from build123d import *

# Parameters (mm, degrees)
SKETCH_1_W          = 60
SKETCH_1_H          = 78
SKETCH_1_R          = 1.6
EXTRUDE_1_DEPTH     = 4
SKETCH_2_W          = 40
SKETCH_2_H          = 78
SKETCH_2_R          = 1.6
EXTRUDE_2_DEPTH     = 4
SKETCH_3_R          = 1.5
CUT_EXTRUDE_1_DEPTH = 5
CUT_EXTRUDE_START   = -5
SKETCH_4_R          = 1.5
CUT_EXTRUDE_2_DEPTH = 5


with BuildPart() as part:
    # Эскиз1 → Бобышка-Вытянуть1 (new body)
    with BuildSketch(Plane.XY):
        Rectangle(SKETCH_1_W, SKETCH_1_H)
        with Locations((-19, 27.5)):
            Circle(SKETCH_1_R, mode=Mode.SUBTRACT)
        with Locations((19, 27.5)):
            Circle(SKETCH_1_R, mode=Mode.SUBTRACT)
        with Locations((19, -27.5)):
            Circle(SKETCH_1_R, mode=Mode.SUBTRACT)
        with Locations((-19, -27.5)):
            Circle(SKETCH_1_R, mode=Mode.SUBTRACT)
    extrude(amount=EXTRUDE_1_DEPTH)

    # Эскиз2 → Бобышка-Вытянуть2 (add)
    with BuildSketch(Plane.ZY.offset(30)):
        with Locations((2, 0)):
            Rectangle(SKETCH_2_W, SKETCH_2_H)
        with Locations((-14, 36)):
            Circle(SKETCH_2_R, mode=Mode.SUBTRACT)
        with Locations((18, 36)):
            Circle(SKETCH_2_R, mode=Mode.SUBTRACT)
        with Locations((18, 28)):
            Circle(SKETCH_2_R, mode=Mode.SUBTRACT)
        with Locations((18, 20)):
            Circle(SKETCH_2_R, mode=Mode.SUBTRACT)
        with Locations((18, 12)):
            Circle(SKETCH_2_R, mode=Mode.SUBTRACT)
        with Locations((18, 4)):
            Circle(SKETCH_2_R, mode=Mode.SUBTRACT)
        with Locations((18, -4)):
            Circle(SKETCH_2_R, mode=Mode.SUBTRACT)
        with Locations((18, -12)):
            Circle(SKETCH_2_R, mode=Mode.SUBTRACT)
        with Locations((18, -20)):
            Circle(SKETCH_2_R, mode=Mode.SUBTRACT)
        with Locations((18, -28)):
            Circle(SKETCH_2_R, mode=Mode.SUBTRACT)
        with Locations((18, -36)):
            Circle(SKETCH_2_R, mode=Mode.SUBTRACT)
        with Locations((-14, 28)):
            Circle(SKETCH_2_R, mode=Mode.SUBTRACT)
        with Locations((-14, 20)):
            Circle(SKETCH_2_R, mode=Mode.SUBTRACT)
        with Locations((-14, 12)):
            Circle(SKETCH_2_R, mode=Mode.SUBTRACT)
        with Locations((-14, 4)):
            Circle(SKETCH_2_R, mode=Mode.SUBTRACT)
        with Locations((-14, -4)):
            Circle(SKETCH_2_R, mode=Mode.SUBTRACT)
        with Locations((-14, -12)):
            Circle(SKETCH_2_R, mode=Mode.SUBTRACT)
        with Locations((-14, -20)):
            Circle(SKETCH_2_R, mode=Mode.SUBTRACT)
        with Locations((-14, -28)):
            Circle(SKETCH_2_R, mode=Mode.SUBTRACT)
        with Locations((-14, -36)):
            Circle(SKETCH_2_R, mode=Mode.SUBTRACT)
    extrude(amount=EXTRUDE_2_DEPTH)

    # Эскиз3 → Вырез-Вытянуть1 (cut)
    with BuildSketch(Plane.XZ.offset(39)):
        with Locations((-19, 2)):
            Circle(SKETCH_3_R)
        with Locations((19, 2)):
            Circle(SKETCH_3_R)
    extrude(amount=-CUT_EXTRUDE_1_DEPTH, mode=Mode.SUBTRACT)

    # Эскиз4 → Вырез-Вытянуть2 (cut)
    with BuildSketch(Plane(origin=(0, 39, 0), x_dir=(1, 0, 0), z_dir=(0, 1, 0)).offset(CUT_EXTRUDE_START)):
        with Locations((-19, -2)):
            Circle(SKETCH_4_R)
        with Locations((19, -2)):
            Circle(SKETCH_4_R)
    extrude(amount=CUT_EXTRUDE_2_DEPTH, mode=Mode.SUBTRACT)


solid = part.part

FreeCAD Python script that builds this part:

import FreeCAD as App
import Part
import Sketcher

doc = App.newDocument("Part")
params = doc.addObject("Spreadsheet::Sheet", "Params")
for row, (alias, value) in enumerate([
    ("sketch1_diameter", "3.2 mm"),
    ("sketch1_width", "60 mm"),
    ("sketch1_height", "78 mm"),
    ("pad1_length", "4 mm"),
    ("sketch2_diameter", "3.2 mm"),
    ("sketch2_width", "78 mm"),
    ("sketch2_height", "40 mm"),
    ("pad2_length", "4 mm"),
    ("sketch3_diameter", "3 mm"),
    ("pocket1_length", "5 mm"),
    ("sketch4_diameter", "3 mm"),
    ("pocket2_length", "5 mm"),
], start=1):
    params.set(f"A{row}", alias)
    params.set(f"B{row}", "=" + value)
    params.setAlias(f"B{row}", alias)

body = doc.addObject("PartDesign::Body", "Body")

sketch1 = doc.addObject("Sketcher::SketchObject", "Sketch")
body.addObject(sketch1)
sketch1.AttachmentSupport = (doc.XY_Plane, [""])
sketch1.MapMode = "FlatFace"
sketch1.addGeometry(Part.LineSegment(App.Vector(-30, 39, 0), App.Vector(-30, -39, 0)), False)
sketch1.addGeometry(Part.LineSegment(App.Vector(-30, -39, 0), App.Vector(30, -39, 0)), False)
sketch1.addGeometry(Part.LineSegment(App.Vector(30, -39, 0), App.Vector(30, 39, 0)), False)
sketch1.addGeometry(Part.LineSegment(App.Vector(30, 39, 0), App.Vector(-30, 39, 0)), False)
sketch1.addGeometry(Part.Circle(App.Vector(-19, -27.5, 0), App.Vector(0, 0, 1), 1.6), False)
sketch1.addGeometry(Part.Circle(App.Vector(19, -27.5, 0), App.Vector(0, 0, 1), 1.6), False)
sketch1.addGeometry(Part.Circle(App.Vector(-19, 27.5, 0), App.Vector(0, 0, 1), 1.6), False)
sketch1.addGeometry(Part.Circle(App.Vector(19, 27.5, 0), App.Vector(0, 0, 1), 1.6), False)
sketch1.addConstraint(Sketcher.Constraint("Coincident", 0, 2, 1, 1))
sketch1.addConstraint(Sketcher.Constraint("Coincident", 1, 2, 2, 1))
sketch1.addConstraint(Sketcher.Constraint("Coincident", 2, 2, 3, 1))
sketch1.addConstraint(Sketcher.Constraint("Coincident", 3, 2, 0, 1))
sketch1.addConstraint(Sketcher.Constraint("Vertical", 0))
sketch1.addConstraint(Sketcher.Constraint("Horizontal", 1))
sketch1.addConstraint(Sketcher.Constraint("Vertical", 2))
sketch1.addConstraint(Sketcher.Constraint("Horizontal", 3))
sketch1.addConstraint(Sketcher.Constraint("Equal", 4, 5))
sketch1.addConstraint(Sketcher.Constraint("Equal", 5, 6))
sketch1.addConstraint(Sketcher.Constraint("Equal", 6, 7))
sketch1.addConstraint(Sketcher.Constraint("Symmetric", 5, 3, 6, 3, -1, 1))
sketch1.addConstraint(Sketcher.Constraint("Symmetric", 4, 3, 7, 3, -1, 1))
sketch1.addConstraint(Sketcher.Constraint("Symmetric", 0, 2, 2, 2, -1, 1))
sketch1.addConstraint(Sketcher.Constraint("Symmetric", 4, 3, 5, 3, -2))
sketch1.addConstraint(Sketcher.Constraint("Diameter", 4, 3.2))
sketch1.addConstraint(Sketcher.Constraint("DistanceX", 1, 1, 1, 2, 60.0))
sketch1.addConstraint(Sketcher.Constraint("DistanceY", 0, 2, 0, 1, 78.0))
sketch1.addConstraint(Sketcher.Constraint("DistanceX", 4, 3, -1, 1, 19.0))
sketch1.addConstraint(Sketcher.Constraint("DistanceY", 4, 3, 6, 3, 55.0))
sketch1.setExpression("Constraints[15]", "Params.sketch1_diameter")
sketch1.setExpression("Constraints[16]", "Params.sketch1_width")
sketch1.setExpression("Constraints[17]", "Params.sketch1_height")
pad1 = doc.addObject("PartDesign::Pad", "Pad")
body.addObject(pad1)
pad1.Profile = sketch1
pad1.setExpression("Length", "Params.pad1_length")

sketch2 = doc.addObject("Sketcher::SketchObject", "Sketch001")
body.addObject(sketch2)
sketch2.AttachmentSupport = (doc.YZ_Plane, [""])
sketch2.MapMode = "FlatFace"
sketch2.AttachmentOffset = App.Placement(App.Vector(0, 0, -30), App.Rotation())
sketch2.addGeometry(Part.LineSegment(App.Vector(39, -18, 0), App.Vector(-39, -18, 0)), False)
sketch2.addGeometry(Part.LineSegment(App.Vector(-39, -18, 0), App.Vector(-39, 22, 0)), False)
sketch2.addGeometry(Part.LineSegment(App.Vector(-39, 22, 0), App.Vector(39, 22, 0)), False)
sketch2.addGeometry(Part.LineSegment(App.Vector(39, 22, 0), App.Vector(39, -18, 0)), False)
sketch2.addGeometry(Part.Circle(App.Vector(-36, -14, 0), App.Vector(0, 0, 1), 1.6), False)
sketch2.addGeometry(Part.Circle(App.Vector(-28, -14, 0), App.Vector(0, 0, 1), 1.6), False)
sketch2.addGeometry(Part.Circle(App.Vector(-20, -14, 0), App.Vector(0, 0, 1), 1.6), False)
sketch2.addGeometry(Part.Circle(App.Vector(-12, -14, 0), App.Vector(0, 0, 1), 1.6), False)
sketch2.addGeometry(Part.Circle(App.Vector(-4, -14, 0), App.Vector(0, 0, 1), 1.6), False)
sketch2.addGeometry(Part.Circle(App.Vector(-36, 18, 0), App.Vector(0, 0, 1), 1.6), False)
sketch2.addGeometry(Part.Circle(App.Vector(-28, 18, 0), App.Vector(0, 0, 1), 1.6), False)
sketch2.addGeometry(Part.Circle(App.Vector(-20, 18, 0), App.Vector(0, 0, 1), 1.6), False)
sketch2.addGeometry(Part.Circle(App.Vector(-12, 18, 0), App.Vector(0, 0, 1), 1.6), False)
sketch2.addGeometry(Part.Circle(App.Vector(-4, 18, 0), App.Vector(0, 0, 1), 1.6), False)
sketch2.addGeometry(Part.Circle(App.Vector(4, -14, 0), App.Vector(0, 0, 1), 1.6), False)
sketch2.addGeometry(Part.Circle(App.Vector(12, -14, 0), App.Vector(0, 0, 1), 1.6), False)
sketch2.addGeometry(Part.Circle(App.Vector(20, -14, 0), App.Vector(0, 0, 1), 1.6), False)
sketch2.addGeometry(Part.Circle(App.Vector(28, -14, 0), App.Vector(0, 0, 1), 1.6), False)
sketch2.addGeometry(Part.Circle(App.Vector(36, -14, 0), App.Vector(0, 0, 1), 1.6), False)
sketch2.addGeometry(Part.Circle(App.Vector(4, 18, 0), App.Vector(0, 0, 1), 1.6), False)
sketch2.addGeometry(Part.Circle(App.Vector(12, 18, 0), App.Vector(0, 0, 1), 1.6), False)
sketch2.addGeometry(Part.Circle(App.Vector(20, 18, 0), App.Vector(0, 0, 1), 1.6), False)
sketch2.addGeometry(Part.Circle(App.Vector(28, 18, 0), App.Vector(0, 0, 1), 1.6), False)
sketch2.addGeometry(Part.Circle(App.Vector(36, 18, 0), App.Vector(0, 0, 1), 1.6), False)
sketch2.addConstraint(Sketcher.Constraint("Coincident", 0, 2, 1, 1))
sketch2.addConstraint(Sketcher.Constraint("Coincident", 1, 2, 2, 1))
sketch2.addConstraint(Sketcher.Constraint("Coincident", 2, 2, 3, 1))
sketch2.addConstraint(Sketcher.Constraint("Coincident", 3, 2, 0, 1))
sketch2.addConstraint(Sketcher.Constraint("Horizontal", 0))
sketch2.addConstraint(Sketcher.Constraint("Vertical", 1))
sketch2.addConstraint(Sketcher.Constraint("Horizontal", 2))
sketch2.addConstraint(Sketcher.Constraint("Vertical", 3))
sketch2.addConstraint(Sketcher.Constraint("Equal", 4, 5))
sketch2.addConstraint(Sketcher.Constraint("Equal", 5, 6))
sketch2.addConstraint(Sketcher.Constraint("Equal", 6, 7))
sketch2.addConstraint(Sketcher.Constraint("Equal", 7, 8))
sketch2.addConstraint(Sketcher.Constraint("Equal", 8, 9))
sketch2.addConstraint(Sketcher.Constraint("Equal", 9, 10))
sketch2.addConstraint(Sketcher.Constraint("Equal", 10, 11))
sketch2.addConstraint(Sketcher.Constraint("Equal", 11, 12))
sketch2.addConstraint(Sketcher.Constraint("Equal", 12, 13))
sketch2.addConstraint(Sketcher.Constraint("Equal", 13, 14))
sketch2.addConstraint(Sketcher.Constraint("Equal", 14, 15))
sketch2.addConstraint(Sketcher.Constraint("Equal", 15, 16))
sketch2.addConstraint(Sketcher.Constraint("Equal", 16, 17))
sketch2.addConstraint(Sketcher.Constraint("Equal", 17, 18))
sketch2.addConstraint(Sketcher.Constraint("Equal", 18, 19))
sketch2.addConstraint(Sketcher.Constraint("Equal", 19, 20))
sketch2.addConstraint(Sketcher.Constraint("Equal", 20, 21))
sketch2.addConstraint(Sketcher.Constraint("Equal", 21, 22))
sketch2.addConstraint(Sketcher.Constraint("Equal", 22, 23))
sketch2.addConstraint(Sketcher.Constraint("Symmetric", 8, 3, 14, 3, -2))
sketch2.addConstraint(Sketcher.Constraint("Symmetric", 7, 3, 15, 3, -2))
sketch2.addConstraint(Sketcher.Constraint("Symmetric", 6, 3, 16, 3, -2))
sketch2.addConstraint(Sketcher.Constraint("Symmetric", 5, 3, 17, 3, -2))
sketch2.addConstraint(Sketcher.Constraint("Symmetric", 4, 3, 18, 3, -2))
sketch2.addConstraint(Sketcher.Constraint("Symmetric", 13, 3, 19, 3, -2))
sketch2.addConstraint(Sketcher.Constraint("Symmetric", 12, 3, 20, 3, -2))
sketch2.addConstraint(Sketcher.Constraint("Symmetric", 11, 3, 21, 3, -2))
sketch2.addConstraint(Sketcher.Constraint("Symmetric", 10, 3, 22, 3, -2))
sketch2.addConstraint(Sketcher.Constraint("Symmetric", 9, 3, 23, 3, -2))
sketch2.addConstraint(Sketcher.Constraint("Horizontal", 4, 3, 5, 3))
sketch2.addConstraint(Sketcher.Constraint("Horizontal", 5, 3, 6, 3))
sketch2.addConstraint(Sketcher.Constraint("Horizontal", 6, 3, 7, 3))
sketch2.addConstraint(Sketcher.Constraint("Horizontal", 7, 3, 8, 3))
sketch2.addConstraint(Sketcher.Constraint("Horizontal", 9, 3, 10, 3))
sketch2.addConstraint(Sketcher.Constraint("Horizontal", 10, 3, 11, 3))
sketch2.addConstraint(Sketcher.Constraint("Horizontal", 11, 3, 12, 3))
sketch2.addConstraint(Sketcher.Constraint("Horizontal", 12, 3, 13, 3))
sketch2.addConstraint(Sketcher.Constraint("Vertical", 4, 3, 9, 3))
sketch2.addConstraint(Sketcher.Constraint("Vertical", 5, 3, 10, 3))
sketch2.addConstraint(Sketcher.Constraint("Vertical", 6, 3, 11, 3))
sketch2.addConstraint(Sketcher.Constraint("Vertical", 7, 3, 12, 3))
sketch2.addConstraint(Sketcher.Constraint("Vertical", 8, 3, 13, 3))
sketch2.addConstraint(Sketcher.Constraint("Diameter", 4, 3.2))
sketch2.addConstraint(Sketcher.Constraint("DistanceX", 0, 2, 0, 1, 78.0))
sketch2.addConstraint(Sketcher.Constraint("DistanceY", 1, 1, 1, 2, 40.0))
sketch2.addConstraint(Sketcher.Constraint("DistanceX", 4, 3, -1, 1, 36.0))
sketch2.addConstraint(Sketcher.Constraint("DistanceY", 4, 3, -1, 1, 14.0))
sketch2.addConstraint(Sketcher.Constraint("DistanceX", 5, 3, -1, 1, 28.0))
sketch2.addConstraint(Sketcher.Constraint("DistanceX", 6, 3, -1, 1, 20.0))
sketch2.addConstraint(Sketcher.Constraint("DistanceX", 7, 3, -1, 1, 12.0))
sketch2.addConstraint(Sketcher.Constraint("DistanceX", 8, 3, -1, 1, 4.0))
sketch2.addConstraint(Sketcher.Constraint("DistanceY", -1, 1, 9, 3, 18.0))
sketch2.addConstraint(Sketcher.Constraint("DistanceX", 0, 2, -1, 1, 39.0))
sketch2.addConstraint(Sketcher.Constraint("DistanceY", 0, 2, -1, 1, 18.0))
sketch2.setExpression("Constraints[50]", "Params.sketch2_diameter")
sketch2.setExpression("Constraints[51]", "Params.sketch2_width")
sketch2.setExpression("Constraints[52]", "Params.sketch2_height")
pad2 = doc.addObject("PartDesign::Pad", "Pad001")
body.addObject(pad2)
pad2.Profile = sketch2
pad2.setExpression("Length", "Params.pad2_length")
pad2.Reversed = True

sketch3 = doc.addObject("Sketcher::SketchObject", "Sketch002")
body.addObject(sketch3)
sketch3.AttachmentSupport = (doc.XZ_Plane, [""])
sketch3.MapMode = "FlatFace"
sketch3.AttachmentOffset = App.Placement(App.Vector(0, 0, 39), App.Rotation())
sketch3.addGeometry(Part.Circle(App.Vector(-19, 2, 0), App.Vector(0, 0, 1), 1.5), False)
sketch3.addGeometry(Part.Circle(App.Vector(19, 2, 0), App.Vector(0, 0, 1), 1.5), False)
sketch3.addConstraint(Sketcher.Constraint("Equal", 0, 1))
sketch3.addConstraint(Sketcher.Constraint("Symmetric", 0, 3, 1, 3, -2))
sketch3.addConstraint(Sketcher.Constraint("Diameter", 0, 3.0))
sketch3.addConstraint(Sketcher.Constraint("DistanceX", 0, 3, -1, 1, 19.0))
sketch3.addConstraint(Sketcher.Constraint("DistanceY", -1, 1, 0, 3, 2.0))
sketch3.setExpression("Constraints[2]", "Params.sketch3_diameter")
pocket1 = doc.addObject("PartDesign::Pocket", "Pocket")
body.addObject(pocket1)
pocket1.Profile = sketch3
pocket1.setExpression("Length", "Params.pocket1_length")

sketch4 = doc.addObject("Sketcher::SketchObject", "Sketch003")
body.addObject(sketch4)
sketch4.AttachmentSupport = (doc.XZ_Plane, [""])
sketch4.MapMode = "FlatFace"
sketch4.AttachmentOffset = App.Placement(App.Vector(0, 0, -34), App.Rotation())
sketch4.addGeometry(Part.Circle(App.Vector(-19, 2, 0), App.Vector(0, 0, 1), 1.5), False)
sketch4.addGeometry(Part.Circle(App.Vector(19, 2, 0), App.Vector(0, 0, 1), 1.5), False)
sketch4.addConstraint(Sketcher.Constraint("Equal", 0, 1))
sketch4.addConstraint(Sketcher.Constraint("Symmetric", 0, 3, 1, 3, -2))
sketch4.addConstraint(Sketcher.Constraint("Diameter", 0, 3.0))
sketch4.addConstraint(Sketcher.Constraint("DistanceX", 0, 3, -1, 1, 19.0))
sketch4.addConstraint(Sketcher.Constraint("DistanceY", -1, 1, 0, 3, 2.0))
sketch4.setExpression("Constraints[2]", "Params.sketch4_diameter")
pocket2 = doc.addObject("PartDesign::Pocket", "Pocket001")
body.addObject(pocket2)
pocket2.Profile = sketch4
pocket2.setExpression("Length", "Params.pocket2_length")

doc.recompute()
